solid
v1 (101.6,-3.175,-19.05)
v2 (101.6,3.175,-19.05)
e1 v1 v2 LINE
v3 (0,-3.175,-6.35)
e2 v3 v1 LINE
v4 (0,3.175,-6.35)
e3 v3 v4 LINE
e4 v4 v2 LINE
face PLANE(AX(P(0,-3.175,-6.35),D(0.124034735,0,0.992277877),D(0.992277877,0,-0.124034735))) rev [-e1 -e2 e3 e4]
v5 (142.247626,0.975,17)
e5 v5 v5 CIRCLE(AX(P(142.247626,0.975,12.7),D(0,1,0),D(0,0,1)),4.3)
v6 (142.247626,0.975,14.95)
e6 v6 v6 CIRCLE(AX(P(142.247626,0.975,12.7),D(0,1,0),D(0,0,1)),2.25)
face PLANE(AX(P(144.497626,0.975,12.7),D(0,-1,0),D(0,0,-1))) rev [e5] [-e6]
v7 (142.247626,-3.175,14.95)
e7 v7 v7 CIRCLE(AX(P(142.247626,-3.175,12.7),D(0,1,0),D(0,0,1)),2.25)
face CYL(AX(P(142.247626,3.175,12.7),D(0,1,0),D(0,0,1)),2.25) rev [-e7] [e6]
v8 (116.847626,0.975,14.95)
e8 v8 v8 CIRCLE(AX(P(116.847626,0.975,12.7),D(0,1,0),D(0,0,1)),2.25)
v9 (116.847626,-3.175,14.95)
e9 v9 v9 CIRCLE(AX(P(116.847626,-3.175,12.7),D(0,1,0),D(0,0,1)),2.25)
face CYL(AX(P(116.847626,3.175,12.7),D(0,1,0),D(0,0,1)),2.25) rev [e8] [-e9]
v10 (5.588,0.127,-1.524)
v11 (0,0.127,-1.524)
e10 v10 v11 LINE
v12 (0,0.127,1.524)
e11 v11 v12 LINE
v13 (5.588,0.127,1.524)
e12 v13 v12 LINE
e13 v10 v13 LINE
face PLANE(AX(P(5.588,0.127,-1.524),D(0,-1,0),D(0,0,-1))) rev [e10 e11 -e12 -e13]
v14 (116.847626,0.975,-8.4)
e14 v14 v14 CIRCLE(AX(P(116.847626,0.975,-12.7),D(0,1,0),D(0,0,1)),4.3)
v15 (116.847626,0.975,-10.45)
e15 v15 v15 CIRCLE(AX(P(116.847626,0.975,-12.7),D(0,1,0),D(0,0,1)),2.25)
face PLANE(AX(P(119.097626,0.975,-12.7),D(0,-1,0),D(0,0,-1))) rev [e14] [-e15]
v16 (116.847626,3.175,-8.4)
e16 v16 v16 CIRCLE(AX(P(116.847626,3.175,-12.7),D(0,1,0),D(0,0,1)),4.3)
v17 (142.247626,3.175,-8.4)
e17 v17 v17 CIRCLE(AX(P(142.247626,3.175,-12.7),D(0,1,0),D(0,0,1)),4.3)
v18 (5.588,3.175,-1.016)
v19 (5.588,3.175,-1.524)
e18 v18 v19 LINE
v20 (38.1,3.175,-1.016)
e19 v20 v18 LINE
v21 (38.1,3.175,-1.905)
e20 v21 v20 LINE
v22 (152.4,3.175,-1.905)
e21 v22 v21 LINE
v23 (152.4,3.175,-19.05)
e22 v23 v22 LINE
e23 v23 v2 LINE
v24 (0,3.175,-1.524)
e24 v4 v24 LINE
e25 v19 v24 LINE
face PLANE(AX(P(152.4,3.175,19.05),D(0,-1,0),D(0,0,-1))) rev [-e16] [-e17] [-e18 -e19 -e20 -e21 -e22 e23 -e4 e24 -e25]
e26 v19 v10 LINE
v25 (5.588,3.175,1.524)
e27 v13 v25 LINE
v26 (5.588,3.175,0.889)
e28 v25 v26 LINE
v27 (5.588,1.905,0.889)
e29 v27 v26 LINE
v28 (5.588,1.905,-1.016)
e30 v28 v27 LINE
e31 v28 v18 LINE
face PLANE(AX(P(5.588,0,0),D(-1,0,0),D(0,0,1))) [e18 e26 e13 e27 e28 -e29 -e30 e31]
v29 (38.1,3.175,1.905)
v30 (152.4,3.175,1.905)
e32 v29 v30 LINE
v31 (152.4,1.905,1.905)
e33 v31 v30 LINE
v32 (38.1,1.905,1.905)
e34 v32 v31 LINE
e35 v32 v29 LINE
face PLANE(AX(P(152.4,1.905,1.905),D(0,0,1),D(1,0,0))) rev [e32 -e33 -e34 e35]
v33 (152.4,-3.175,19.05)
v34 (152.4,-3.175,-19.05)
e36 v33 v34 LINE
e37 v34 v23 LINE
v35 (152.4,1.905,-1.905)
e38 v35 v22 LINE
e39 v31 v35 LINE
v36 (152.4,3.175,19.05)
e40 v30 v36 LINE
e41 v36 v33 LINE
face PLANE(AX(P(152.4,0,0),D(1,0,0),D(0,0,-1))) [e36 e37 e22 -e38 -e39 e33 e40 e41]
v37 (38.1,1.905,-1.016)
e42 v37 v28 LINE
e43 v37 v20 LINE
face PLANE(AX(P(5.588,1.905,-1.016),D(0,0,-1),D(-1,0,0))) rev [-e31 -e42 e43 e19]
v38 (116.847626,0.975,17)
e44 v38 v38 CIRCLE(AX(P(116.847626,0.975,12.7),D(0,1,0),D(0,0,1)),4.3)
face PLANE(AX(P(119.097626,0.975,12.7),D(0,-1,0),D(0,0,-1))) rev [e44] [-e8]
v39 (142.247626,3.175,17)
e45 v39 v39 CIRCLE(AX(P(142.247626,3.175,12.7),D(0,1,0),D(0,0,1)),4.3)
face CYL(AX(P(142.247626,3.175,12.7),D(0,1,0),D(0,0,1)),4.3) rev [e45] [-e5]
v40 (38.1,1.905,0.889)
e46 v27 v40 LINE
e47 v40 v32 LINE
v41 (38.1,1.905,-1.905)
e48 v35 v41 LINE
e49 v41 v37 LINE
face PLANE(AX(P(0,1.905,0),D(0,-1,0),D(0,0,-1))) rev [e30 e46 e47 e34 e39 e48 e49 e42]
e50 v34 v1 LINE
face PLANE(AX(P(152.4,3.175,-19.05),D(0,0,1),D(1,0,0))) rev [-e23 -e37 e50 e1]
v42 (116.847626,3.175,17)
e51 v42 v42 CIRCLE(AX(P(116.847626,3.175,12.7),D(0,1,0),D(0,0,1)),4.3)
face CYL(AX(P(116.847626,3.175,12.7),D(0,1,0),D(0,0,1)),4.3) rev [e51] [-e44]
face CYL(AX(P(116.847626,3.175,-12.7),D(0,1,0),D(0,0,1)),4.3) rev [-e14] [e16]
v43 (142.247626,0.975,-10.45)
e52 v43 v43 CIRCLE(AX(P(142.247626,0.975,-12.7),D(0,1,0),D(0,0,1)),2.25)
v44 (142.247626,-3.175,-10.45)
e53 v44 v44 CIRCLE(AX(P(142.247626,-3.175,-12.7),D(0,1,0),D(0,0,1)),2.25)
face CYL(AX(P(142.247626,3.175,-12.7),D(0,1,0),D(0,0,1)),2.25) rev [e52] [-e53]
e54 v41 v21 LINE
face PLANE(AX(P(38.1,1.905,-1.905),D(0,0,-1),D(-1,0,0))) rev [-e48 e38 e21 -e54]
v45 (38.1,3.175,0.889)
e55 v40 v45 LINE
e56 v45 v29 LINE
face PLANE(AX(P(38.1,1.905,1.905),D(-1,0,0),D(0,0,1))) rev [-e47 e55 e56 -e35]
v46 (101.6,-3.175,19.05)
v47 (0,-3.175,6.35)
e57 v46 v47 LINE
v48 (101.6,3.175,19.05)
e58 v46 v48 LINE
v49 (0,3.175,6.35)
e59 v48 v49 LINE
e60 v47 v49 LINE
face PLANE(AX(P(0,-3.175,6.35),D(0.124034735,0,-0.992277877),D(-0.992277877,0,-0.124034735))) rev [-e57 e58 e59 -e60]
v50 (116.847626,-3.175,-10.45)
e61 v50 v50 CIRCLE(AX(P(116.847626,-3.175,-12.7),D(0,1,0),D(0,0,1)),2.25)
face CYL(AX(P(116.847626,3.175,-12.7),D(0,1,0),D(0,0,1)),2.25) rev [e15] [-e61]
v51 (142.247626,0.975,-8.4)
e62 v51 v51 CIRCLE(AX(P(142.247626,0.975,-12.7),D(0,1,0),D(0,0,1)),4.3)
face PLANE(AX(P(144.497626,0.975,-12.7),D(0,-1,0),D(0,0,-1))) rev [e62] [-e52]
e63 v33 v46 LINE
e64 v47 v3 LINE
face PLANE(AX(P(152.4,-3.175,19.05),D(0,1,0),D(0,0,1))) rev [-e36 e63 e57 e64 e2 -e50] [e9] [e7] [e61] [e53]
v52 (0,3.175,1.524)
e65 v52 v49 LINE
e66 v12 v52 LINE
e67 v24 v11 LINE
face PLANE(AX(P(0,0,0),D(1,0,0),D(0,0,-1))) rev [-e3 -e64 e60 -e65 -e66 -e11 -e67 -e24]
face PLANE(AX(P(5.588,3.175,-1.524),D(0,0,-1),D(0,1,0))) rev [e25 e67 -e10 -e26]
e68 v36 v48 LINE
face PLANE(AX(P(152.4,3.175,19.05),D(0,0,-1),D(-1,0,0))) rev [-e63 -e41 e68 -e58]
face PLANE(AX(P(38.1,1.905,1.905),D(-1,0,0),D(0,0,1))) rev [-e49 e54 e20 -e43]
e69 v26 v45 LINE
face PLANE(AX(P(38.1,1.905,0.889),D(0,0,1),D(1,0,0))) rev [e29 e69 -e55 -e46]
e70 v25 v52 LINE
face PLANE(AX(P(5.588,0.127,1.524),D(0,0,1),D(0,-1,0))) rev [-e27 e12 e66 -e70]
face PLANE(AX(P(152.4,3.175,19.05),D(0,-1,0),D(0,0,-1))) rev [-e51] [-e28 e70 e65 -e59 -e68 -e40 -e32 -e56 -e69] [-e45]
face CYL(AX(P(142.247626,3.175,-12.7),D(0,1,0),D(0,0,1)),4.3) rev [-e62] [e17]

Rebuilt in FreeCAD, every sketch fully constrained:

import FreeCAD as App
import Part
import Sketcher

V = App.Vector
Q = App.Units.Quantity

doc = App.newDocument("Part")
body = doc.addObject("PartDesign::Body", "Body")

# Sketch on YZ plane
sketch1 = doc.addObject("Sketcher::SketchObject", "Sketch")
body.addObject(sketch1)
sketch1.AttachmentSupport = (doc.YZ_Plane, [""])
sketch1.MapMode = "FlatFace"
sketch1.addGeometry(Part.LineSegment(V(3.175, 19.05, 0), V(-3.175, 19.05, 0)), False)
sketch1.addGeometry(Part.LineSegment(V(-3.175, 19.05, 0), V(-3.175, -19.05, 0)), False)
sketch1.addGeometry(Part.LineSegment(V(-3.175, -19.05, 0), V(3.175, -19.05, 0)), False)
sketch1.addGeometry(Part.LineSegment(V(3.175, -19.05, 0), V(3.175, 19.05, 0)), False)
sketch1.addConstraint(Sketcher.Constraint("Coincident", 0, 2, 1, 1))
sketch1.addConstraint(Sketcher.Constraint("Coincident", 1, 2, 2, 1))
sketch1.addConstraint(Sketcher.Constraint("Coincident", 2, 2, 3, 1))
sketch1.addConstraint(Sketcher.Constraint("Coincident", 3, 2, 0, 1))
sketch1.addConstraint(Sketcher.Constraint("Horizontal", 0))
sketch1.addConstraint(Sketcher.Constraint("Vertical", 1))
sketch1.addConstraint(Sketcher.Constraint("Horizontal", 2))
sketch1.addConstraint(Sketcher.Constraint("Vertical", 3))
sketch1.addConstraint(Sketcher.Constraint("Symmetric", 0, 2, 2, 2, -1, 1))
sketch1.addConstraint(Sketcher.Constraint("DistanceY", 1, 2, 1, 1, Q("1.5 in")))
sketch1.addConstraint(Sketcher.Constraint("DistanceX", 0, 2, 0, 1, Q("0.25 in")))
pad1 = doc.addObject("PartDesign::Pad", "Pad")
body.addObject(pad1)
pad1.Profile = sketch1
pad1.Length = Q("6 in")

# Sketch on XZ plane
sketch2 = doc.addObject("Sketcher::SketchObject", "Sketch001")
body.addObject(sketch2)
sketch2.AttachmentSupport = (doc.XZ_Plane, [""])
sketch2.MapMode = "FlatFace"
sketch2.AttachmentOffset = App.Placement(V(0, 0, -0.125 * 25.4), App.Rotation())
sketch2.addGeometry(Part.Circle(V(142.247626, 12.7, 0), V(0, 0, 1), 2.25), False)
sketch2.addGeometry(Part.Circle(V(142.247626, -12.7, 0), V(0, 0, 1), 2.25), False)
sketch2.addGeometry(Part.Circle(V(116.847626, -12.7, 0), V(0, 0, 1), 2.25), False)
sketch2.addGeometry(Part.Circle(V(116.847626, 12.7, 0), V(0, 0, 1), 2.25), False)
sketch2.addConstraint(Sketcher.Constraint("Equal", 0, 1))
sketch2.addConstraint(Sketcher.Constraint("Equal", 1, 2))
sketch2.addConstraint(Sketcher.Constraint("Equal", 2, 3))
sketch2.addConstraint(Sketcher.Constraint("Symmetric", 0, 3, 1, 3, -1))
sketch2.addConstraint(Sketcher.Constraint("Symmetric", 2, 3, 3, 3, -1))
sketch2.addConstraint(Sketcher.Constraint("Horizontal", 1, 3, 2, 3))
sketch2.addConstraint(Sketcher.Constraint("DistanceY", 1, 3, 0, 3, Q("1 in")))
sketch2.addConstraint(Sketcher.Constraint("DistanceX", 2, 3, 1, 3, Q("1 in")))
sketch2.addConstraint(Sketcher.Constraint("Diameter", 0, Q("4.5 mm")))
sketch2.addConstraint(Sketcher.Constraint("DistanceX", -1, 1, 0, 3, Q("142.247626 mm")))
doc.recompute()
hole = doc.addObject("PartDesign::Hole", "Hole")
body.addObject(hole)
hole.Profile = sketch2
hole.ThreadType = "None"
hole.Diameter = 4.5
hole.DepthType = "ThroughAll"
hole.HoleCutType = "Counterbore"
hole.HoleCutDiameter = 8.6
hole.HoleCutDepth = 2.2
hole.Reversed = True

# Sketch on YZ plane
sketch3 = doc.addObject("Sketcher::SketchObject", "Sketch002")
body.addObject(sketch3)
sketch3.AttachmentSupport = (doc.YZ_Plane, [""])
sketch3.MapMode = "FlatFace"
sketch3.addGeometry(Part.LineSegment(V(3.175, -1.524, 0), V(0.127, -1.524, 0)), False)
sketch3.addGeometry(Part.LineSegment(V(0.127, -1.524, 0), V(0.127, 1.524, 0)), False)
sketch3.addGeometry(Part.LineSegment(V(0.127, 1.524, 0), V(3.175, 1.524, 0)), False)
sketch3.addGeometry(Part.LineSegment(V(3.175, 1.524, 0), V(3.175, -1.524, 0)), False)
sketch3.addConstraint(Sketcher.Constraint("Coincident", 0, 2, 1, 1))
sketch3.addConstraint(Sketcher.Constraint("Coincident", 1, 2, 2, 1))
sketch3.addConstraint(Sketcher.Constraint("Coincident", 2, 2, 3, 1))
sketch3.addConstraint(Sketcher.Constraint("Coincident", 3, 2, 0, 1))
sketch3.addConstraint(Sketcher.Constraint("Horizontal", 0))
sketch3.addConstraint(Sketcher.Constraint("Vertical", 1))
sketch3.addConstraint(Sketcher.Constraint("Horizontal", 2))
sketch3.addConstraint(Sketcher.Constraint("Vertical", 3))
sketch3.addConstraint(Sketcher.Constraint("Equal", 2, 1))
sketch3.addConstraint(Sketcher.Constraint("DistanceX", 0, 2, 0, 1, Q("0.12 in")))
sketch3.addConstraint(Sketcher.Constraint("DistanceY", 0, 2, -1, 1, Q("0.06 in")))
sketch3.addConstraint(Sketcher.Constraint("DistanceX", -1, 1, 0, 2, Q("0.005 in")))
pocket1 = doc.addObject("PartDesign::Pocket", "Pocket")
body.addObject(pocket1)
pocket1.Profile = sketch3
pocket1.Length = Q("0.22 in")
pocket1.Reversed = True

# Sketch on XZ plane
sketch4 = doc.addObject("Sketcher::SketchObject", "Sketch003")
body.addObject(sketch4)
sketch4.AttachmentSupport = (doc.XZ_Plane, [""])
sketch4.MapMode = "FlatFace"
sketch4.AttachmentOffset = App.Placement(V(0, 0, -0.125 * 25.4), App.Rotation())
sketch4.addGeometry(Part.LineSegment(V(38.1, -1.905, 0), V(38.1, 1.905, 0)), False)
sketch4.addGeometry(Part.LineSegment(V(38.1, 1.905, 0), V(152.4, 1.905, 0)), False)
sketch4.addGeometry(Part.LineSegment(V(152.4, 1.905, 0), V(152.4, -1.905, 0)), False)
sketch4.addGeometry(Part.LineSegment(V(152.4, -1.905, 0), V(38.1, -1.905, 0)), False)
sketch4.addConstraint(Sketcher.Constraint("Coincident", 0, 2, 1, 1))
sketch4.addConstraint(Sketcher.Constraint("Coincident", 1, 2, 2, 1))
sketch4.addConstraint(Sketcher.Constraint("Coincident", 2, 2, 3, 1))
sketch4.addConstraint(Sketcher.Constraint("Coincident", 3, 2, 0, 1))
sketch4.addConstraint(Sketcher.Constraint("Vertical", 0))
sketch4.addConstraint(Sketcher.Constraint("Horizontal", 1))
sketch4.addConstraint(Sketcher.Constraint("Vertical", 2))
sketch4.addConstraint(Sketcher.Constraint("Horizontal", 3))
sketch4.addConstraint(Sketcher.Constraint("DistanceX", 1, 1, 1, 2, Q("4.5 in")))
sketch4.addConstraint(Sketcher.Constraint("DistanceX", -1, 1, 1, 2, Q("6 in")))
sketch4.addConstraint(Sketcher.Constraint("DistanceY", 0, 1, 0, 2, Q("0.15 in")))
sketch4.addConstraint(Sketcher.Constraint("DistanceY", -1, 1, 0, 2, Q("0.075 in")))
pocket2 = doc.addObject("PartDesign::Pocket", "Pocket001")
body.addObject(pocket2)
pocket2.Profile = sketch4
pocket2.Length = Q("0.05 in")
pocket2.Reversed = True

# Sketch on XZ plane
sketch5 = doc.addObject("Sketcher::SketchObject", "Sketch004")
body.addObject(sketch5)
sketch5.AttachmentSupport = (doc.XZ_Plane, [""])
sketch5.MapMode = "FlatFace"
sketch5.AttachmentOffset = App.Placement(V(0, 0, -0.125 * 25.4), App.Rotation())
sketch5.addGeometry(Part.LineSegment(V(5.588, -1.016, 0), V(5.588, 0.889, 0)), False)
sketch5.addGeometry(Part.LineSegment(V(5.588, 0.889, 0), V(38.1, 0.889, 0)), False)
sketch5.addGeometry(Part.LineSegment(V(38.1, 0.889, 0), V(38.1, -1.016, 0)), False)
sketch5.addGeometry(Part.LineSegment(V(38.1, -1.016, 0), V(5.588, -1.016, 0)), False)
sketch5.addConstraint(Sketcher.Constraint("Coincident", 0, 2, 1, 1))
sketch5.addConstraint(Sketcher.Constraint("Coincident", 1, 2, 2, 1))
sketch5.addConstraint(Sketcher.Constraint("Coincident", 2, 2, 3, 1))
sketch5.addConstraint(Sketcher.Constraint("Coincident", 3, 2, 0, 1))
sketch5.addConstraint(Sketcher.Constraint("Vertical", 0))
sketch5.addConstraint(Sketcher.Constraint("Horizontal", 1))
sketch5.addConstraint(Sketcher.Constraint("Vertical", 2))
sketch5.addConstraint(Sketcher.Constraint("Horizontal", 3))
sketch5.addConstraint(Sketcher.Constraint("DistanceX", 1, 1, 1, 2, Q("1.28 in")))
sketch5.addConstraint(Sketcher.Constraint("DistanceX", -1, 1, 1, 2, Q("1.5 in")))
sketch5.addConstraint(Sketcher.Constraint("DistanceY", 0, 1, 0, 2, Q("0.075 in")))
sketch5.addConstraint(Sketcher.Constraint("DistanceY", 2, 2, -1, 1, Q("0.04 in")))
pocket3 = doc.addObject("PartDesign::Pocket", "Pocket002")
body.addObject(pocket3)
pocket3.Profile = sketch5
pocket3.Length = Q("0.05 in")
pocket3.Reversed = True

# Sketch on XZ plane
sketch6 = doc.addObject("Sketcher::SketchObject", "Sketch005")
body.addObject(sketch6)
sketch6.AttachmentSupport = (doc.XZ_Plane, [""])
sketch6.MapMode = "FlatFace"
sketch6.AttachmentOffset = App.Placement(V(0, 0, -0.125 * 25.4), App.Rotation())
sketch6.addGeometry(Part.LineSegment(V(0, -19.05, 0), V(0, -6.35, 0)), False)
sketch6.addGeometry(Part.LineSegment(V(0, -6.35, 0), V(101.6, -19.05, 0)), False)
sketch6.addGeometry(Part.LineSegment(V(101.6, -19.05, 0), V(0, -19.05, 0)), False)
sketch6.addConstraint(Sketcher.Constraint("Coincident", 0, 2, 1, 1))
sketch6.addConstraint(Sketcher.Constraint("Coincident", 1, 2, 2, 1))
sketch6.addConstraint(Sketcher.Constraint("Coincident", 2, 2, 0, 1))
sketch6.addConstraint(Sketcher.Constraint("Vertical", 0))
sketch6.addConstraint(Sketcher.Constraint("Horizontal", 2))
sketch6.addConstraint(Sketcher.Constraint("PointOnObject", 0, 2, -2))
sketch6.addConstraint(Sketcher.Constraint("DistanceX", 2, 2, 2, 1, Q("4 in")))
sketch6.addConstraint(Sketcher.Constraint("DistanceY", 0, 1, 0, 2, Q("0.5 in")))
sketch6.addConstraint(Sketcher.Constraint("DistanceY", 0, 2, -1, 1, Q("0.25 in")))
pocket4 = doc.addObject("PartDesign::Pocket", "Pocket003")
body.addObject(pocket4)
pocket4.Profile = sketch6
pocket4.Length = Q("0.25 in")
pocket4.Reversed = True

# Sketch on XZ plane
sketch7 = doc.addObject("Sketcher::SketchObject", "Sketch006")
body.addObject(sketch7)
sketch7.AttachmentSupport = (doc.XZ_Plane, [""])
sketch7.MapMode = "FlatFace"
sketch7.AttachmentOffset = App.Placement(V(0, 0, -0.125 * 25.4), App.Rotation())
sketch7.addGeometry(Part.LineSegment(V(101.6, 19.05, 0), V(0, 6.35, 0)), False)
sketch7.addGeometry(Part.LineSegment(V(0, 6.35, 0), V(0, 19.05, 0)), False)
sketch7.addGeometry(Part.LineSegment(V(0, 19.05, 0), V(101.6, 19.05, 0)), False)
sketch7.addConstraint(Sketcher.Constraint("Coincident", 0, 2, 1, 1))
sketch7.addConstraint(Sketcher.Constraint("Coincident", 1, 2, 2, 1))
sketch7.addConstraint(Sketcher.Constraint("Coincident", 2, 2, 0, 1))
sketch7.addConstraint(Sketcher.Constraint("Vertical", 1))
sketch7.addConstraint(Sketcher.Constraint("Horizontal", 2))
sketch7.addConstraint(Sketcher.Constraint("PointOnObject", 0, 2, -2))
sketch7.addConstraint(Sketcher.Constraint("DistanceX", 2, 1, 2, 2, Q("4 in")))
sketch7.addConstraint(Sketcher.Constraint("DistanceY", 1, 1, 1, 2, Q("0.5 in")))
sketch7.addConstraint(Sketcher.Constraint("DistanceY", -1, 1, 0, 2, Q("0.25 in")))
pocket5 = doc.addObject("PartDesign::Pocket", "Pocket004")
body.addObject(pocket5)
pocket5.Profile = sketch7
pocket5.Length = Q("0.25 in")
pocket5.Reversed = True

doc.recompute()
